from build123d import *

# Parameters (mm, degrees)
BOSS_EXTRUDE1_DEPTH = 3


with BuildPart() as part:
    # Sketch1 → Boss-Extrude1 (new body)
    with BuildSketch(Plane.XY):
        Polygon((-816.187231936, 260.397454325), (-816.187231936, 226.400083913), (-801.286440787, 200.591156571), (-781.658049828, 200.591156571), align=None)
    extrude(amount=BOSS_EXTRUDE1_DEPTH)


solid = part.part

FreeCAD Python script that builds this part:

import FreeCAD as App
import Part
import Sketcher
Q = App.Units.Quantity


def add_polygon(sketch, points):
    """Adds a closed chain of lines whose ends are joined by coincident constraints."""
    first, n = sketch.GeometryCount, len(points)
    for a, b in zip(points, points[1:] + points[:1]):
        sketch.addGeometry(Part.LineSegment(App.Vector(*a, 0), App.Vector(*b, 0)), False)
    for i in range(n):
        sketch.addConstraint(Sketcher.Constraint("Coincident", first + i, 2, first + (i + 1) % n, 1))

doc = App.newDocument("Part")
body = doc.addObject("PartDesign::Body", "Body")

# Sketch on XY plane
sketch1 = doc.addObject("Sketcher::SketchObject", "Sketch")
body.addObject(sketch1)
sketch1.AttachmentSupport = (doc.XY_Plane, [""])
sketch1.MapMode = "FlatFace"
add_polygon(sketch1, [(-816, 260), (-816, 226), (-801, 201), (-782, 201)])  # lines 0-3
sketch1.addConstraint(Sketcher.Constraint("Vertical", 0))
sketch1.addConstraint(Sketcher.Constraint("Horizontal", 2))
sketch1.addConstraint(Sketcher.Constraint("Parallel", 1, 3))
sketch1.addConstraint(Sketcher.Constraint("Angle", 1, Q("-60 deg")))
sketch1.addConstraint(Sketcher.Constraint("DistanceX", 2, 1, 2, 2, Q("19.628391 mm")))
sketch1.addConstraint(Sketcher.Constraint("DistanceX", 0, 2, -1, 1, Q("816.187232 mm")))
sketch1.addConstraint(Sketcher.Constraint("DistanceX", 1, 2, -1, 1, Q("801.286441 mm")))
sketch1.addConstraint(Sketcher.Constraint("DistanceY", -1, 1, 0, 2, Q("226.400084 mm")))
pad1 = doc.addObject("PartDesign::Pad", "Pad")
body.addObject(pad1)
pad1.Profile = sketch1
pad1.Length = 3

doc.recompute()
